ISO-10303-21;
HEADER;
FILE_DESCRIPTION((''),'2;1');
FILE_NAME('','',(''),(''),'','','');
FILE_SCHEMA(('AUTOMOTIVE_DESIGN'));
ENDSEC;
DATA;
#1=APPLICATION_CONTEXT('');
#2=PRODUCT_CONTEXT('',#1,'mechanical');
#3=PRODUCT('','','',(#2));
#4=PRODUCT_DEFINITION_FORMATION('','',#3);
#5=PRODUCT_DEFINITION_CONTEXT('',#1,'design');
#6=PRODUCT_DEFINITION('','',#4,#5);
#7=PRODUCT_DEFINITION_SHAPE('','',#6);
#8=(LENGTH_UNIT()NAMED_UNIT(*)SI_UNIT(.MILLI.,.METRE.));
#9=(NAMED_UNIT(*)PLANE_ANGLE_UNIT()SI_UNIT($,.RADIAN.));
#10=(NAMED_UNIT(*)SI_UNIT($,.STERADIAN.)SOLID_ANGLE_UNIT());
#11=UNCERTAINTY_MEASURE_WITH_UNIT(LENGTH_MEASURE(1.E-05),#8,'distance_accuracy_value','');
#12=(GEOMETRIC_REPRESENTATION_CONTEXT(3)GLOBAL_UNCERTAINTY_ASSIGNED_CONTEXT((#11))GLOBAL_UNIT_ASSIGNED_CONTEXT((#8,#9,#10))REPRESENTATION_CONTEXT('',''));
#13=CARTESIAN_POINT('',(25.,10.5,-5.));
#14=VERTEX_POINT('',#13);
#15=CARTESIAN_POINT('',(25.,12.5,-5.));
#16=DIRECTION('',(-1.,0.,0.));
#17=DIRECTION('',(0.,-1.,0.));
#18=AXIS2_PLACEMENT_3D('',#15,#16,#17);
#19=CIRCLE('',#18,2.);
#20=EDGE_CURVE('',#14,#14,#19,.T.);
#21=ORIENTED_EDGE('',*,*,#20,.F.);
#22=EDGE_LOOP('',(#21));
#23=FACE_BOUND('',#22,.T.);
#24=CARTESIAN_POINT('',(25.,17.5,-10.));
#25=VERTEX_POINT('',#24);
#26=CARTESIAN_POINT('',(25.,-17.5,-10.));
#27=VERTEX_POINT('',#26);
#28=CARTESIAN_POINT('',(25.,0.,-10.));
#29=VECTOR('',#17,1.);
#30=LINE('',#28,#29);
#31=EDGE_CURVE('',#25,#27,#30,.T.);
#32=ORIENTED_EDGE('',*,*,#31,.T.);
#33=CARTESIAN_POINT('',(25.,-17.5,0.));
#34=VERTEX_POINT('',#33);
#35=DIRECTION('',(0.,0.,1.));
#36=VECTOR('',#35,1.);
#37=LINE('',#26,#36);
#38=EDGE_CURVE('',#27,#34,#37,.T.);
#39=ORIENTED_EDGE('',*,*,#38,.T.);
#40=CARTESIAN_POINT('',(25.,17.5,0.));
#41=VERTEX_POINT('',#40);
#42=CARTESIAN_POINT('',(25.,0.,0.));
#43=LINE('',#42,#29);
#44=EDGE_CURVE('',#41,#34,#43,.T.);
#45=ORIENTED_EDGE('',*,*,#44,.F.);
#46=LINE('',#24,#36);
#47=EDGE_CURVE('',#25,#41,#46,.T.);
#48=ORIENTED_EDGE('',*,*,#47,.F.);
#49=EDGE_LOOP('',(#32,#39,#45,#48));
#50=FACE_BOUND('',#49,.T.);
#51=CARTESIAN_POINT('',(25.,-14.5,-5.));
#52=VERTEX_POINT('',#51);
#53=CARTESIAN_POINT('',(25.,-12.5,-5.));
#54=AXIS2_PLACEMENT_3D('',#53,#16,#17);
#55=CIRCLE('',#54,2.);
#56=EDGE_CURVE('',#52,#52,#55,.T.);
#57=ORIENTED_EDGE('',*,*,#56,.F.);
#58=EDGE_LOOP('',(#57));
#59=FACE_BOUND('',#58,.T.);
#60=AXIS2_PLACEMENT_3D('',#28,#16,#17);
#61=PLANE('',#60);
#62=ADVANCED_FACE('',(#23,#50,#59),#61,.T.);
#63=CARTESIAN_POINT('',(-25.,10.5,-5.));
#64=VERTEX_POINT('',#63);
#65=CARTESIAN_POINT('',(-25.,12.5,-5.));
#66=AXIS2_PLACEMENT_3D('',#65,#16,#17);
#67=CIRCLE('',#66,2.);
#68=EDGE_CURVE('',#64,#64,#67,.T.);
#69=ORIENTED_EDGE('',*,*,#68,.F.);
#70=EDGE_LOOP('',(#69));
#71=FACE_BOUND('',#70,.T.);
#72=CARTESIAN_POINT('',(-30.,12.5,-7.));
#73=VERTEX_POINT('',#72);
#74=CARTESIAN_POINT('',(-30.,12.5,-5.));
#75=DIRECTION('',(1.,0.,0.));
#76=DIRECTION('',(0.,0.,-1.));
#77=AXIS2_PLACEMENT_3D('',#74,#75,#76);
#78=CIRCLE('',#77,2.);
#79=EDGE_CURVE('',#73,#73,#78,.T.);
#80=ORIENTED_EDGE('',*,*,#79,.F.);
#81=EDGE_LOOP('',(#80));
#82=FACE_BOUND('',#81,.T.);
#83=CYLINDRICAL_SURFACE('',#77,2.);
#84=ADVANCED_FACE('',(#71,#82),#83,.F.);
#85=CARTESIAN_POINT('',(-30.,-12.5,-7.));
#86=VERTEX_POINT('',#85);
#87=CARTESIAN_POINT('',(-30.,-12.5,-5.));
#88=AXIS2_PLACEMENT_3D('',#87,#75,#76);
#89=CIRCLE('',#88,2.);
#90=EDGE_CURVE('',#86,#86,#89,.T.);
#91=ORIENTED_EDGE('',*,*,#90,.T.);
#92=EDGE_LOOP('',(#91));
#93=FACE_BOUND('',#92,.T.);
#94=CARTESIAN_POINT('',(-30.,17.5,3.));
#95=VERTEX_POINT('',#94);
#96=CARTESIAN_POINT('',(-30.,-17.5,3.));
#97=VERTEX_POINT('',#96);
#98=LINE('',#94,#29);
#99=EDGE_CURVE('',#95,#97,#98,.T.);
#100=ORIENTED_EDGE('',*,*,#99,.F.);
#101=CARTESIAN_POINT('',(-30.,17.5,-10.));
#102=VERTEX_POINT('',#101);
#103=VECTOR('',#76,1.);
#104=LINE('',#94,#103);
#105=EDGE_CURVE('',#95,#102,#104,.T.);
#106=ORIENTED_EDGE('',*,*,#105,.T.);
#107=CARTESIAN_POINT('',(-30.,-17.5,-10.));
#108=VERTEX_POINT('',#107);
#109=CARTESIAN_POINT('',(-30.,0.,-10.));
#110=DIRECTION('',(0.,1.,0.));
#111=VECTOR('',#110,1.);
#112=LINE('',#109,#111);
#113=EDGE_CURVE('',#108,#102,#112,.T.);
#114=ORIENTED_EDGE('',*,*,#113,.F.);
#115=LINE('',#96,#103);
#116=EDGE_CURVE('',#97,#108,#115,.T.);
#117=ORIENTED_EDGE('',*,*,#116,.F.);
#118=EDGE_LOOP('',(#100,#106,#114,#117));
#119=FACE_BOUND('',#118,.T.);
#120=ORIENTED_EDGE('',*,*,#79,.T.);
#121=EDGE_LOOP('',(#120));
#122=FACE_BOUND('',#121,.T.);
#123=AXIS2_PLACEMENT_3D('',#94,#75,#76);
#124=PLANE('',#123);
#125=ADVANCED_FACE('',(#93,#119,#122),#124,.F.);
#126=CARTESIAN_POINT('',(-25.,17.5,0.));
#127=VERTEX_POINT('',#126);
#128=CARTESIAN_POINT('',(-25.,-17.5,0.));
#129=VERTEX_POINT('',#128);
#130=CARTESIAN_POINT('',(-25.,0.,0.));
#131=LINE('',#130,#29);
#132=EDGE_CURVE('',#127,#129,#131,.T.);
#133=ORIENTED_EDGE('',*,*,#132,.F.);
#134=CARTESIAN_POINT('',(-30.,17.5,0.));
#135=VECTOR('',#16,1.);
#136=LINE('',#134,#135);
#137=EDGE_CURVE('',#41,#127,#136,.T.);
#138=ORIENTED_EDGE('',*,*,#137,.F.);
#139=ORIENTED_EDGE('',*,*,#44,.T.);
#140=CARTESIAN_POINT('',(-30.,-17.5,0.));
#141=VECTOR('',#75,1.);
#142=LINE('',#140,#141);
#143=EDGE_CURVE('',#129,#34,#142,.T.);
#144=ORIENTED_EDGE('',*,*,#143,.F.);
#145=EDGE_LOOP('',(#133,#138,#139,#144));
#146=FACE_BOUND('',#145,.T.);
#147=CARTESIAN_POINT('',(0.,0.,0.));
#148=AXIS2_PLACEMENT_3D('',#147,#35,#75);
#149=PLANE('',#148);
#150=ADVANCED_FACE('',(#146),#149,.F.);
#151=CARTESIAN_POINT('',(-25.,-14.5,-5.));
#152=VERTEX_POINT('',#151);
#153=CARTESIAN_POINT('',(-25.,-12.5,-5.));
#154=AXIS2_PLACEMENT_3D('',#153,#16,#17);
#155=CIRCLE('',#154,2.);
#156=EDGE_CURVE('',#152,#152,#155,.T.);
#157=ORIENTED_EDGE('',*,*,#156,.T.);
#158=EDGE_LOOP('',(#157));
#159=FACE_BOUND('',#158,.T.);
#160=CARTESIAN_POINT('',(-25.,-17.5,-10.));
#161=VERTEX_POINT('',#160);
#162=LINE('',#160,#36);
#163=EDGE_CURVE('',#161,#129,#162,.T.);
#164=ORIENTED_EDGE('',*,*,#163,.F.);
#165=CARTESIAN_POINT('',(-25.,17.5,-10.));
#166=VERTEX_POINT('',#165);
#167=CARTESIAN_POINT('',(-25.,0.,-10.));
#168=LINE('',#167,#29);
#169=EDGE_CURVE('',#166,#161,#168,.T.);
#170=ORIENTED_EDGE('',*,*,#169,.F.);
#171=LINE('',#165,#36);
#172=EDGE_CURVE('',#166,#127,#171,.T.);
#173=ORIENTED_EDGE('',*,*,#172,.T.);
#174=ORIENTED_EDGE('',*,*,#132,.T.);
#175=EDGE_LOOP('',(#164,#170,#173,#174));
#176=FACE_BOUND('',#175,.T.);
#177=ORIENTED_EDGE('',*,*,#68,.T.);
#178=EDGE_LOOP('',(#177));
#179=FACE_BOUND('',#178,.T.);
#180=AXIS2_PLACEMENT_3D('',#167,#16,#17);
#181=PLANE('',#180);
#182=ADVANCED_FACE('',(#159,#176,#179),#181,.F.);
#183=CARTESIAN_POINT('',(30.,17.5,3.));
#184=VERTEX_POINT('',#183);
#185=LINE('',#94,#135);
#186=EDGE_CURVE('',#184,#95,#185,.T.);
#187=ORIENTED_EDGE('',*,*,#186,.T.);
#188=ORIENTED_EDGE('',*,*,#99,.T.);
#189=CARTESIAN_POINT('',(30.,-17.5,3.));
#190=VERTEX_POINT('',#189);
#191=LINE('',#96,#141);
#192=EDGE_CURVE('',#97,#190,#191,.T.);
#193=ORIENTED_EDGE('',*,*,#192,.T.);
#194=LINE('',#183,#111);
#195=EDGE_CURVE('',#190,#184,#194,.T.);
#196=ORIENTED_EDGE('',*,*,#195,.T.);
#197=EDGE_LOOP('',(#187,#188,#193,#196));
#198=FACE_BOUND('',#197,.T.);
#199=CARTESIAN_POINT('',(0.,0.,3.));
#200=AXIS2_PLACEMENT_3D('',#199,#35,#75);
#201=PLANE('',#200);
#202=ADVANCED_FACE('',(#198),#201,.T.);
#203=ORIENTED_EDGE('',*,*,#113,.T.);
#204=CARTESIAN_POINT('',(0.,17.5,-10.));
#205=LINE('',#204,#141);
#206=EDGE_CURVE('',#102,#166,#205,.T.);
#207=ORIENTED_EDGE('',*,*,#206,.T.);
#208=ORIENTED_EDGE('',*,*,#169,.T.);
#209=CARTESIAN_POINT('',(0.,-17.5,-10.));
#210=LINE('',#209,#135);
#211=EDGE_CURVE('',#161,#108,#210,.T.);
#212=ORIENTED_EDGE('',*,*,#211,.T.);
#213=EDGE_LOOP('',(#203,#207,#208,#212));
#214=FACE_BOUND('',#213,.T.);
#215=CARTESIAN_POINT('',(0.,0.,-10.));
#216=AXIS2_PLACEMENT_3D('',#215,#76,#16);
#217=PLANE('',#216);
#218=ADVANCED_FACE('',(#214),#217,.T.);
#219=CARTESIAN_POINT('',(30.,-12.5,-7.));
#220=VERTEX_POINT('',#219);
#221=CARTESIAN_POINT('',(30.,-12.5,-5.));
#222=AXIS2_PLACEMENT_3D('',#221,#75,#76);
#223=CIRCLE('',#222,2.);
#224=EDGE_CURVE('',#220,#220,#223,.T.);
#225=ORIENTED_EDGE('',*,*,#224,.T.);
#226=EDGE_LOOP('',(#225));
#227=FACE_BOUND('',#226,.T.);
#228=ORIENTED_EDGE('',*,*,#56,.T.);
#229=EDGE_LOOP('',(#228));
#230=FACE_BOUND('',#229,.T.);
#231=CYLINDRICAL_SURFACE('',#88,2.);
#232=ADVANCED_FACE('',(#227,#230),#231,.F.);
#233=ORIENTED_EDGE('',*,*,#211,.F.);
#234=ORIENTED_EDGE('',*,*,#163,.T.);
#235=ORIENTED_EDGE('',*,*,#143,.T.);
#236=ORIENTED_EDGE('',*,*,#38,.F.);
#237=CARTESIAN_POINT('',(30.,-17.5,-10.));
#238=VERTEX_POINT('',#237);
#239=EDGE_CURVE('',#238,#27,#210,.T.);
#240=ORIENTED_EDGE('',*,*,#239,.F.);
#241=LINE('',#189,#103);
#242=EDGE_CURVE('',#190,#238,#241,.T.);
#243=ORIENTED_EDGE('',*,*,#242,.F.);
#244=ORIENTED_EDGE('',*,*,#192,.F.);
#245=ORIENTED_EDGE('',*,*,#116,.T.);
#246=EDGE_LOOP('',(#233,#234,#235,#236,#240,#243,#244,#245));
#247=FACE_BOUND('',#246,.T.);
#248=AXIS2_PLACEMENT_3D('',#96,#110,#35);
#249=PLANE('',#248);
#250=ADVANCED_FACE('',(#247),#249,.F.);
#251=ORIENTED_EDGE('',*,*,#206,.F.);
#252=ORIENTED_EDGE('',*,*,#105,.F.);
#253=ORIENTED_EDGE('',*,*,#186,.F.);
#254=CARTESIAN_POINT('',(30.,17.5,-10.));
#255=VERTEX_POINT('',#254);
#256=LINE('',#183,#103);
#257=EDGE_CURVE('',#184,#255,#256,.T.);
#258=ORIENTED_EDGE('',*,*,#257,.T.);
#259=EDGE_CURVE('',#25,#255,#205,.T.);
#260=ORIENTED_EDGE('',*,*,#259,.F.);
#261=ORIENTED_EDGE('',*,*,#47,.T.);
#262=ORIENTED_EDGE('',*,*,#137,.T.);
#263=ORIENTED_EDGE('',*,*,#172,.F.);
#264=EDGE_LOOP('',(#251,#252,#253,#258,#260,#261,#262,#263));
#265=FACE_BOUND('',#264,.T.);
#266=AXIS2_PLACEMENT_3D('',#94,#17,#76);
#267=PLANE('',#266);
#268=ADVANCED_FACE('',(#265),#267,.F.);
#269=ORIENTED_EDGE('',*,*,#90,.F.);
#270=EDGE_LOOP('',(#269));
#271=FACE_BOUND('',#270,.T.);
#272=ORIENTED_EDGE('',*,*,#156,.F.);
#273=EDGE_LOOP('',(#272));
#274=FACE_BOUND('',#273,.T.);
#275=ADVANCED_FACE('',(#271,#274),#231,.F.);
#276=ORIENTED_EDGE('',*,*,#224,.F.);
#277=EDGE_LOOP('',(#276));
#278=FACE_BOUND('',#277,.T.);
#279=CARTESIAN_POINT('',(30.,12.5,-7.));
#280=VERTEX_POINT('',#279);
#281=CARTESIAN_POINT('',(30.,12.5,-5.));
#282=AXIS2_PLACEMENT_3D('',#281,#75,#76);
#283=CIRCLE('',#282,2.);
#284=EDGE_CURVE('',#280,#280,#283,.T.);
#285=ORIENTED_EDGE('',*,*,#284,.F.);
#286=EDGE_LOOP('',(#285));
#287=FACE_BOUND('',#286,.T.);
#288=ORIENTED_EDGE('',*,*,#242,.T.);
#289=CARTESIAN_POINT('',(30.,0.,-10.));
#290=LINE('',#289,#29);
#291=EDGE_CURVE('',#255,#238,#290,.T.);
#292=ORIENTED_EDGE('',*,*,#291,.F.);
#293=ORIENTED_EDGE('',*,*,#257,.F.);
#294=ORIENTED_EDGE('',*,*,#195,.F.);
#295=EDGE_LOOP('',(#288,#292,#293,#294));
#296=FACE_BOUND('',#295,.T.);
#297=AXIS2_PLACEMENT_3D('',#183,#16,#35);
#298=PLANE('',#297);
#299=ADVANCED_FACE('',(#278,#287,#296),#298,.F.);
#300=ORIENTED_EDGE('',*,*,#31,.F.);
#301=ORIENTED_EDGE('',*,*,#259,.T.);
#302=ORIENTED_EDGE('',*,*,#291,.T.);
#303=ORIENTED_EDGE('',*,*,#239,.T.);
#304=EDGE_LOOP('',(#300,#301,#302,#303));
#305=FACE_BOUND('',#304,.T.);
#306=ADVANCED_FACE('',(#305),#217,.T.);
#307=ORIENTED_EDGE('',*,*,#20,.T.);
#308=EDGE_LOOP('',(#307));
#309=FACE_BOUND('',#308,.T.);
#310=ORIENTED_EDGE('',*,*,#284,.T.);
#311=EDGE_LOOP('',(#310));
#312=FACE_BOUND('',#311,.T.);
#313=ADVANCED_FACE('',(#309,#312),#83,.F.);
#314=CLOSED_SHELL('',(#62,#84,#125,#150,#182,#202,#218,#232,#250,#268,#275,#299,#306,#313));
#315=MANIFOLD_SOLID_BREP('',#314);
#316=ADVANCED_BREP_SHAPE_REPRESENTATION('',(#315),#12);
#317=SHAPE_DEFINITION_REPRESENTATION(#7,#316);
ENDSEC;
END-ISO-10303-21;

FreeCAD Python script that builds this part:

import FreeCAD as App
import Part
import Sketcher
Q = App.Units.Quantity


def add_polygon(sketch, points):
    """Adds a closed chain of lines whose ends are joined by coincident constraints."""
    first, n = sketch.GeometryCount, len(points)
    for a, b in zip(points, points[1:] + points[:1]):
        sketch.addGeometry(Part.LineSegment(App.Vector(*a, 0), App.Vector(*b, 0)), False)
    for i in range(n):
        sketch.addConstraint(Sketcher.Constraint("Coincident", first + i, 2, first + (i + 1) % n, 1))

doc = App.newDocument("Part")
body = doc.addObject("PartDesign::Body", "Body")

# Sketch on XY plane
sketch1 = doc.addObject("Sketcher::SketchObject", "Sketch")
body.addObject(sketch1)
sketch1.AttachmentSupport = (doc.XY_Plane, [""])
sketch1.MapMode = "FlatFace"
add_polygon(sketch1, [(-30, 18), (-30, -18), (30, -18), (30, 18)])  # lines 0-3
sketch1.addConstraint([
    Sketcher.Constraint("Vertical", 0),
    Sketcher.Constraint("Horizontal", 1),
    Sketcher.Constraint("Vertical", 2),
    Sketcher.Constraint("Horizontal", 3),
    Sketcher.Constraint("Symmetric", 0, 2, 2, 2, -1, 1),
    Sketcher.Constraint("DistanceX", 1, 1, 1, 2, Q("60 mm")),
    Sketcher.Constraint("DistanceY", 0, 2, 0, 1, Q("35 mm")),
])
pad1 = doc.addObject("PartDesign::Pad", "Pad")
body.addObject(pad1)
pad1.Profile = sketch1
pad1.Length = 3

# Sketch on XY plane
sketch2 = doc.addObject("Sketcher::SketchObject", "Sketch001")
body.addObject(sketch2)
sketch2.AttachmentSupport = (doc.XY_Plane, [""])
sketch2.MapMode = "FlatFace"
add_polygon(sketch2, [(30, 18), (30, -18), (25, -18), (25, 18)])  # lines 0-3
add_polygon(sketch2, [(-25, 18), (-25, -18), (-30, -18), (-30, 18)])  # lines 4-7
sketch2.addConstraint([
    Sketcher.Constraint("Vertical", 0),
    Sketcher.Constraint("Horizontal", 1),
    Sketcher.Constraint("Vertical", 2),
    Sketcher.Constraint("Horizontal", 3),
    Sketcher.Constraint("Vertical", 4),
    Sketcher.Constraint("Horizontal", 5),
    Sketcher.Constraint("Vertical", 6),
    Sketcher.Constraint("Horizontal", 7),
    Sketcher.Constraint("Symmetric", 2, 2, 4, 2, -1, 1),
    Sketcher.Constraint("Symmetric", 0, 2, 6, 2, -1, 1),
    Sketcher.Constraint("Horizontal", 1, 2, 4, 2),
    Sketcher.Constraint("DistanceX", 1, 2, 1, 1, Q("5 mm")),
    Sketcher.Constraint("DistanceY", 0, 2, 0, 1, Q("35 mm")),
    Sketcher.Constraint("DistanceX", -1, 1, 0, 2, Q("30 mm")),
])
pad2 = doc.addObject("PartDesign::Pad", "Pad001")
body.addObject(pad2)
pad2.Profile = sketch2
pad2.Length = 10
pad2.Reversed = True

# Sketch on YZ plane
sketch3 = doc.addObject("Sketcher::SketchObject", "Sketch002")
body.addObject(sketch3)
sketch3.AttachmentSupport = (doc.YZ_Plane, [""])
sketch3.MapMode = "FlatFace"
sketch3.AttachmentOffset = App.Placement(App.Vector(0, 0, 30), App.Rotation())
sketch3.addGeometry([
    Part.Circle(App.Vector(12.5, -5, 0), App.Vector(0, 0, 1), 2),
    Part.Circle(App.Vector(-12.5, -5, 0), App.Vector(0, 0, 1), 2),
], False)
sketch3.addConstraint([
    Sketcher.Constraint("Equal", 0, 1),
    Sketcher.Constraint("Symmetric", 0, 3, 1, 3, -2),
    Sketcher.Constraint("Diameter", 0, Q("4 mm")),
    Sketcher.Constraint("DistanceY", 0, 3, -1, 1, Q("5 mm")),
    Sketcher.Constraint("DistanceX", 1, 3, 0, 3, Q("25 mm")),
])
pocket1 = doc.addObject("PartDesign::Pocket", "Pocket")
body.addObject(pocket1)
pocket1.Profile = sketch3
pocket1.Type = "ThroughAll"

doc.recompute()
